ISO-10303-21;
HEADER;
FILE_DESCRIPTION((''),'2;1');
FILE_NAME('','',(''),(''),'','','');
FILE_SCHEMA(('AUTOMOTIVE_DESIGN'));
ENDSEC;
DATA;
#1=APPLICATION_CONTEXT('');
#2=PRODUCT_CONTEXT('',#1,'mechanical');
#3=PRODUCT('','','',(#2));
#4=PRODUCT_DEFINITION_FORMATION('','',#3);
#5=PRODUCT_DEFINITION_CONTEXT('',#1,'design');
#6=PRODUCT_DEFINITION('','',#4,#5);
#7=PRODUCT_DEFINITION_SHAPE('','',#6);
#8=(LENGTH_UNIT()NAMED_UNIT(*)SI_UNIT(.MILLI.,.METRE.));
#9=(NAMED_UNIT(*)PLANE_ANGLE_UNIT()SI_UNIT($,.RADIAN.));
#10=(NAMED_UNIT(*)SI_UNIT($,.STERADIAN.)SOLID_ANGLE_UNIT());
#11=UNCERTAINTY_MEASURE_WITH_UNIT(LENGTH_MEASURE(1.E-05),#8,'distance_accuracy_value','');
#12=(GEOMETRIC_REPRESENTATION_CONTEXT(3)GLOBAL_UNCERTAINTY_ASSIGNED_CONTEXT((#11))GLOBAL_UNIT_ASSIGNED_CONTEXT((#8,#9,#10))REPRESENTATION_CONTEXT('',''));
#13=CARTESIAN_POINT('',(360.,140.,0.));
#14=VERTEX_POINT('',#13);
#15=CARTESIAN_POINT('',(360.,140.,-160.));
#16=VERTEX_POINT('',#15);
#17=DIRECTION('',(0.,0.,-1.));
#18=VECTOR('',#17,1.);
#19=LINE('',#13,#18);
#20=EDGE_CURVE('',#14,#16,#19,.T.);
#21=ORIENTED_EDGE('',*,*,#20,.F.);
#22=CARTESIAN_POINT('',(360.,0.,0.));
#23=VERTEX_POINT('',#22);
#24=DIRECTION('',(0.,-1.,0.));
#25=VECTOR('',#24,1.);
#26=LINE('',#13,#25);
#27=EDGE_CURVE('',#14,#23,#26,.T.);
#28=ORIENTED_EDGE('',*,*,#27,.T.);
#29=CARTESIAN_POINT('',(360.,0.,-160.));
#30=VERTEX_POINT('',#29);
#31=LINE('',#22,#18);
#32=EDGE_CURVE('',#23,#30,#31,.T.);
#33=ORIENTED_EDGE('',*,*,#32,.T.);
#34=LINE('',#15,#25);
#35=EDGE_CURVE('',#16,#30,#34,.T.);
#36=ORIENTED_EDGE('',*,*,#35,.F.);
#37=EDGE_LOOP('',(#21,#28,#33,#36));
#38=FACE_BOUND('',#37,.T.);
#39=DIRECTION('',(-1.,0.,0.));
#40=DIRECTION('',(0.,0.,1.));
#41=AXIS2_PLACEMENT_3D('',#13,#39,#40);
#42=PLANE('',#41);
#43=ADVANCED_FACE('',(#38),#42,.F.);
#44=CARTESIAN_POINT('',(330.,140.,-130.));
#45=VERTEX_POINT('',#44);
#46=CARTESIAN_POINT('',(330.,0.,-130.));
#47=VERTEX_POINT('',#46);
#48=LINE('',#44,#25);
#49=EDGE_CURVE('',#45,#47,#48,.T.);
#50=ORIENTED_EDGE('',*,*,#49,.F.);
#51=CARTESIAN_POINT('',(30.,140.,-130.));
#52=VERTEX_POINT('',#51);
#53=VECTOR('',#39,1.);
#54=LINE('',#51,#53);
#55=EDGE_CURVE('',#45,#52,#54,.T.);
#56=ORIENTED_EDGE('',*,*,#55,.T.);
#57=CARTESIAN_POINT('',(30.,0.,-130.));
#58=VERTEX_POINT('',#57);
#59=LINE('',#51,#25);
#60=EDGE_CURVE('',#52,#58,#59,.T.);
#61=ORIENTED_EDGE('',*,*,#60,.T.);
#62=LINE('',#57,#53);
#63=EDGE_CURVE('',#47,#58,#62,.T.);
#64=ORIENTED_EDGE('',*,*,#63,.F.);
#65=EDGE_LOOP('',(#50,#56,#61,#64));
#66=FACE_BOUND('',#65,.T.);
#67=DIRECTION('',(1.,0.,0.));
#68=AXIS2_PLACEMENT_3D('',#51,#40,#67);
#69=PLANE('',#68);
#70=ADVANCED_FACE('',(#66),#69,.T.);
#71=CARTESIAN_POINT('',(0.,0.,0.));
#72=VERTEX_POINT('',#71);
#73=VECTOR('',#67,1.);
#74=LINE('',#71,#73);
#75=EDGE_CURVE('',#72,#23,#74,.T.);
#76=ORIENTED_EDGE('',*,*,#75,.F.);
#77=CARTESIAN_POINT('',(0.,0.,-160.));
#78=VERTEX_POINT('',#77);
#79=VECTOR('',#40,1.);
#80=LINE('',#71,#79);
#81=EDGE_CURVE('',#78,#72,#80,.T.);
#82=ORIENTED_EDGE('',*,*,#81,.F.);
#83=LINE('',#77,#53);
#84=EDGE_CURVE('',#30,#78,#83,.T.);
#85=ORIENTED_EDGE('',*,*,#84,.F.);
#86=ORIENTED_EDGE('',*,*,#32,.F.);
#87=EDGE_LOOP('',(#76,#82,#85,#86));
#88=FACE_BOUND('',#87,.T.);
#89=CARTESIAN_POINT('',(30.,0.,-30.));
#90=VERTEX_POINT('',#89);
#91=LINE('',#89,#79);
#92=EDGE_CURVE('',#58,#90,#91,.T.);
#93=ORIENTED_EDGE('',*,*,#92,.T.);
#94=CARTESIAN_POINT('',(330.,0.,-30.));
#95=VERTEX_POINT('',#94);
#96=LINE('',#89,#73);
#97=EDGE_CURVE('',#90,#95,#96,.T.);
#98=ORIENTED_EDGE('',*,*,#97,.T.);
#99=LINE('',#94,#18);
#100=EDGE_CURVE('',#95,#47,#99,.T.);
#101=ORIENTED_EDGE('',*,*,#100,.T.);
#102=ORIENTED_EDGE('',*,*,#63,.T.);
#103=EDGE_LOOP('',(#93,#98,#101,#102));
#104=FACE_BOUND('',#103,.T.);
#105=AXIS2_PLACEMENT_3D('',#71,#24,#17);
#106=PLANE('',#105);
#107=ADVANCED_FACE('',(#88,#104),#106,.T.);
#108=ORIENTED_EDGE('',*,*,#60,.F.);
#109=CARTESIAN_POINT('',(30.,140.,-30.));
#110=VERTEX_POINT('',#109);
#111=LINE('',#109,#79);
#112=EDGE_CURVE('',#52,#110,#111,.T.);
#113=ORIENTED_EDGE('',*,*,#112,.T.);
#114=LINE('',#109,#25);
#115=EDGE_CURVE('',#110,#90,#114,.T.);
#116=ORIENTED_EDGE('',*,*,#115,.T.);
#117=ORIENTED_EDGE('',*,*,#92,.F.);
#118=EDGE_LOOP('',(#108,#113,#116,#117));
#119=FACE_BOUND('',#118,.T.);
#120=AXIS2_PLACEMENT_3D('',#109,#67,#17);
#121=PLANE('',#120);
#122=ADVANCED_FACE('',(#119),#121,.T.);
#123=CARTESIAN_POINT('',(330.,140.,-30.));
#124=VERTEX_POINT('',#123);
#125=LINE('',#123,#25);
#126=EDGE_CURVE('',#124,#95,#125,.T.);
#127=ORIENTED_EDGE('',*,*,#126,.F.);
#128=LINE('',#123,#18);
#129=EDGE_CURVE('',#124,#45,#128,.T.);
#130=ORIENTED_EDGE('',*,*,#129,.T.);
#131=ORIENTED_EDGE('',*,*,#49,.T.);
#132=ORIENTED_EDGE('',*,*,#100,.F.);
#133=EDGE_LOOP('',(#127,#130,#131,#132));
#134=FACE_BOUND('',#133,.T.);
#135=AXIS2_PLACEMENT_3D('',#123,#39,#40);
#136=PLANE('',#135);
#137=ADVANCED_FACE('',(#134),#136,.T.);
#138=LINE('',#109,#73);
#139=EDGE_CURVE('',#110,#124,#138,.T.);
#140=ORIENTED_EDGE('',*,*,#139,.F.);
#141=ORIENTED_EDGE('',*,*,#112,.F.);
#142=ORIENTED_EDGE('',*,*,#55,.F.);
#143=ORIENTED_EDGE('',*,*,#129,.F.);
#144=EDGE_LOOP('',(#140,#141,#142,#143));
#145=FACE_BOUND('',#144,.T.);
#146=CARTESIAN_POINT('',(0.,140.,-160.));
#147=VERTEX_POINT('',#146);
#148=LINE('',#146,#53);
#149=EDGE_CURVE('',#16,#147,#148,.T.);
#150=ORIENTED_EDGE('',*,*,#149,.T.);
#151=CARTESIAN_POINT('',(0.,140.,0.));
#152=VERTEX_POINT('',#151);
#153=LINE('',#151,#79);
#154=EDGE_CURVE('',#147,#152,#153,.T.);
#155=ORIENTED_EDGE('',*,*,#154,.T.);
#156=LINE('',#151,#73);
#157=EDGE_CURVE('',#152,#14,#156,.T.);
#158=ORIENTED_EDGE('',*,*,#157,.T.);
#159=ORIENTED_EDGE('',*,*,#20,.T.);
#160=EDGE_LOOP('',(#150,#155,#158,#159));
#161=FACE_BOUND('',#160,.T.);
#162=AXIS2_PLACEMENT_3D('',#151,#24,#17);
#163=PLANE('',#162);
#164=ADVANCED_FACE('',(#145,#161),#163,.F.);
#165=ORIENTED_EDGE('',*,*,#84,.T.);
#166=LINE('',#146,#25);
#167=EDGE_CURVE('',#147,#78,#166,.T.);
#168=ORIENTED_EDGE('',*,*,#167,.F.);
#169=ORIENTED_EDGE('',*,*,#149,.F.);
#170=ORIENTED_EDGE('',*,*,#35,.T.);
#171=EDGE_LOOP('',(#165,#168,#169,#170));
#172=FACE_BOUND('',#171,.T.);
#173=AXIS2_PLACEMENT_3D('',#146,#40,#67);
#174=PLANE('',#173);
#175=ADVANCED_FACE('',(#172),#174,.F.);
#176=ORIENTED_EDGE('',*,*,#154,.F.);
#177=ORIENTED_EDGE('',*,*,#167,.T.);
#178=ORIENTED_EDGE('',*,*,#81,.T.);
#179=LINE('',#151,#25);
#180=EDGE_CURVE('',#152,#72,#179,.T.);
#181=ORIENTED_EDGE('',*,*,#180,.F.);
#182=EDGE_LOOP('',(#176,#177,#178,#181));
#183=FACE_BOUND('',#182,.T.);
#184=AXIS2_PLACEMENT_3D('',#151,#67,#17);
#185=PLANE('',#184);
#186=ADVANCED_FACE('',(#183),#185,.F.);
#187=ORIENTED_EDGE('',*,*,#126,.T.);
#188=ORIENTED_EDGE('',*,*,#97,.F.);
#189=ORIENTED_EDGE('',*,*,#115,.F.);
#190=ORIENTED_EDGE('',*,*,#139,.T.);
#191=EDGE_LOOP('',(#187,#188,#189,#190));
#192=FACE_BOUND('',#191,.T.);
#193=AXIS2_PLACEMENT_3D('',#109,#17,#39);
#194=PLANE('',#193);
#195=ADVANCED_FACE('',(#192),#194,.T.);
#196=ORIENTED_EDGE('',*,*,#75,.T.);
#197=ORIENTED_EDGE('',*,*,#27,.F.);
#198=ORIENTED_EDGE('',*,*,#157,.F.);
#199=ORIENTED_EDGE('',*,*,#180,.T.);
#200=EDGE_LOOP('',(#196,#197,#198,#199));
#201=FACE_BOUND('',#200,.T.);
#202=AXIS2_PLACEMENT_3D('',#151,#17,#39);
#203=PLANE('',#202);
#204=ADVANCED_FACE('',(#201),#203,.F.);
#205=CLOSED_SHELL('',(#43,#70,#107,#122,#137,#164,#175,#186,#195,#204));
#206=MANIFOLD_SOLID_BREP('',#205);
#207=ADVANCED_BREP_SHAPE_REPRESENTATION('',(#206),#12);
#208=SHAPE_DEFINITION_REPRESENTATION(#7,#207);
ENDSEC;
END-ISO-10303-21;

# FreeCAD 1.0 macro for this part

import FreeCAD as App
import Part
import Sketcher
from FreeCAD import Vector
Q = App.Units.Quantity


def add_polygon(sketch, points):
    """Adds a closed chain of lines whose ends are joined by coincident constraints."""
    first, n = sketch.GeometryCount, len(points)
    for a, b in zip(points, points[1:] + points[:1]):
        sketch.addGeometry(Part.LineSegment(App.Vector(*a, 0), App.Vector(*b, 0)), False)
    for i in range(n):
        sketch.addConstraint(Sketcher.Constraint("Coincident", first + i, 2, first + (i + 1) % n, 1))

doc = App.newDocument("Part")
body = doc.addObject("PartDesign::Body", "Body")

sketch1 = body.newObject("Sketcher::SketchObject", "Sketch")
sketch1.AttachmentSupport = (doc.getObject("XZ_Plane"), [""])
sketch1.MapMode = "FlatFace"
add_polygon(sketch1, [(0, -160), (0, 0), (360, 0), (360, -160)])
add_polygon(sketch1, [(330, -30), (30, -30), (30, -130), (330, -130)])
sketch1.addConstraint([
    Sketcher.Constraint("Vertical", 0),
    Sketcher.Constraint("Horizontal", 1),
    Sketcher.Constraint("Vertical", 2),
    Sketcher.Constraint("Horizontal", 3),
    Sketcher.Constraint("Horizontal", 4),
    Sketcher.Constraint("Vertical", 5),
    Sketcher.Constraint("Horizontal", 6),
    Sketcher.Constraint("Vertical", 7),
    Sketcher.Constraint("Coincident", 0, 2, -1, 1),
    Sketcher.Constraint("DistanceX", 1, 1, 1, 2, Q("360 mm")),
    Sketcher.Constraint("DistanceX", 4, 2, 4, 1, Q("300 mm")),
    Sketcher.Constraint("DistanceY", 0, 1, 0, 2, Q("160 mm")),
    Sketcher.Constraint("DistanceY", 5, 2, 5, 1, Q("100 mm")),
    Sketcher.Constraint("DistanceX", -1, 1, 4, 2, Q("30 mm")),
    Sketcher.Constraint("DistanceY", 4, 2, -1, 1, Q("30 mm")),
])
pad1 = body.newObject("PartDesign::Pad", "Pad")
pad1.Profile = sketch1
pad1.Length = 140
pad1.Reversed = True

doc.recompute()
